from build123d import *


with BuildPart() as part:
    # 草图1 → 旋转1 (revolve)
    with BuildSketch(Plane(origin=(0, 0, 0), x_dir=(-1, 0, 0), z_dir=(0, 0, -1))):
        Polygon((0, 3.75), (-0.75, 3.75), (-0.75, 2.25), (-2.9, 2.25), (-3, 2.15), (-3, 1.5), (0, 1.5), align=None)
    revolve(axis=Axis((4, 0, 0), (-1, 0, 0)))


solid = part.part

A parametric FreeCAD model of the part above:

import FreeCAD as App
import Part
import Sketcher
from FreeCAD import Vector
Q = App.Units.Quantity

doc = App.newDocument("Part")
body = doc.addObject("PartDesign::Body", "Body")

# Sketch on XY plane
sketch1 = body.newObject("Sketcher::SketchObject", "Sketch")
sketch1.AttachmentSupport = (doc.getObject("XY_Plane"), [""])
sketch1.MapMode = "FlatFace"
sketch1.addGeometry([
    Part.LineSegment(Vector(0, 3.75, 0), Vector(0.75, 3.75, 0)),  # 0
    Part.LineSegment(Vector(0.75, 3.75, 0), Vector(0.75, 2.25, 0)),  # 1
    Part.LineSegment(Vector(0.75, 2.25, 0), Vector(2.9, 2.25, 0)),  # 2
    Part.LineSegment(Vector(2.9, 2.25, 0), Vector(3, 2.15, 0)),  # 3
    Part.LineSegment(Vector(3, 2.15, 0), Vector(3, 1.5, 0)),  # 4
    Part.LineSegment(Vector(3, 1.5, 0), Vector(0, 1.5, 0)),  # 5
    Part.LineSegment(Vector(0, 1.5, 0), Vector(0, 3.75, 0)),  # 6
], False)
sketch1.addConstraint([
    Sketcher.Constraint("Coincident", 0, 2, 1, 1),
    Sketcher.Constraint("Coincident", 1, 2, 2, 1),
    Sketcher.Constraint("Coincident", 2, 2, 3, 1),
    Sketcher.Constraint("Coincident", 3, 2, 4, 1),
    Sketcher.Constraint("Coincident", 4, 2, 5, 1),
    Sketcher.Constraint("Coincident", 5, 2, 6, 1),
    Sketcher.Constraint("Coincident", 6, 2, 0, 1),
    Sketcher.Constraint("Horizontal", 0),
    Sketcher.Constraint("Vertical", 1),
    Sketcher.Constraint("Horizontal", 2),
    Sketcher.Constraint("Vertical", 4),
    Sketcher.Constraint("Horizontal", 5),
    Sketcher.Constraint("Vertical", 6),
    Sketcher.Constraint("PointOnObject", 5, 2, -2),
    Sketcher.Constraint("DistanceX", 5, 2, 5, 1, 3.0),
    Sketcher.Constraint("Angle", 3, Q("-45 deg")),
    Sketcher.Constraint("DistanceY", 1, 2, 1, 1, 1.5),
    Sketcher.Constraint("DistanceX", 0, 1, 0, 2, 0.75),
    Sketcher.Constraint("DistanceX", 2, 1, 2, 2, 2.15),
    Sketcher.Constraint("DistanceY", 4, 2, 4, 1, 0.65),
    Sketcher.Constraint("DistanceY", -1, 1, 4, 2, 1.5),
])
revolution = body.newObject("PartDesign::Revolution", "Revolution")
revolution.Profile = sketch1
revolution.ReferenceAxis = (sketch1, ["H_Axis"])
revolution.Angle = 360

doc.recompute()
